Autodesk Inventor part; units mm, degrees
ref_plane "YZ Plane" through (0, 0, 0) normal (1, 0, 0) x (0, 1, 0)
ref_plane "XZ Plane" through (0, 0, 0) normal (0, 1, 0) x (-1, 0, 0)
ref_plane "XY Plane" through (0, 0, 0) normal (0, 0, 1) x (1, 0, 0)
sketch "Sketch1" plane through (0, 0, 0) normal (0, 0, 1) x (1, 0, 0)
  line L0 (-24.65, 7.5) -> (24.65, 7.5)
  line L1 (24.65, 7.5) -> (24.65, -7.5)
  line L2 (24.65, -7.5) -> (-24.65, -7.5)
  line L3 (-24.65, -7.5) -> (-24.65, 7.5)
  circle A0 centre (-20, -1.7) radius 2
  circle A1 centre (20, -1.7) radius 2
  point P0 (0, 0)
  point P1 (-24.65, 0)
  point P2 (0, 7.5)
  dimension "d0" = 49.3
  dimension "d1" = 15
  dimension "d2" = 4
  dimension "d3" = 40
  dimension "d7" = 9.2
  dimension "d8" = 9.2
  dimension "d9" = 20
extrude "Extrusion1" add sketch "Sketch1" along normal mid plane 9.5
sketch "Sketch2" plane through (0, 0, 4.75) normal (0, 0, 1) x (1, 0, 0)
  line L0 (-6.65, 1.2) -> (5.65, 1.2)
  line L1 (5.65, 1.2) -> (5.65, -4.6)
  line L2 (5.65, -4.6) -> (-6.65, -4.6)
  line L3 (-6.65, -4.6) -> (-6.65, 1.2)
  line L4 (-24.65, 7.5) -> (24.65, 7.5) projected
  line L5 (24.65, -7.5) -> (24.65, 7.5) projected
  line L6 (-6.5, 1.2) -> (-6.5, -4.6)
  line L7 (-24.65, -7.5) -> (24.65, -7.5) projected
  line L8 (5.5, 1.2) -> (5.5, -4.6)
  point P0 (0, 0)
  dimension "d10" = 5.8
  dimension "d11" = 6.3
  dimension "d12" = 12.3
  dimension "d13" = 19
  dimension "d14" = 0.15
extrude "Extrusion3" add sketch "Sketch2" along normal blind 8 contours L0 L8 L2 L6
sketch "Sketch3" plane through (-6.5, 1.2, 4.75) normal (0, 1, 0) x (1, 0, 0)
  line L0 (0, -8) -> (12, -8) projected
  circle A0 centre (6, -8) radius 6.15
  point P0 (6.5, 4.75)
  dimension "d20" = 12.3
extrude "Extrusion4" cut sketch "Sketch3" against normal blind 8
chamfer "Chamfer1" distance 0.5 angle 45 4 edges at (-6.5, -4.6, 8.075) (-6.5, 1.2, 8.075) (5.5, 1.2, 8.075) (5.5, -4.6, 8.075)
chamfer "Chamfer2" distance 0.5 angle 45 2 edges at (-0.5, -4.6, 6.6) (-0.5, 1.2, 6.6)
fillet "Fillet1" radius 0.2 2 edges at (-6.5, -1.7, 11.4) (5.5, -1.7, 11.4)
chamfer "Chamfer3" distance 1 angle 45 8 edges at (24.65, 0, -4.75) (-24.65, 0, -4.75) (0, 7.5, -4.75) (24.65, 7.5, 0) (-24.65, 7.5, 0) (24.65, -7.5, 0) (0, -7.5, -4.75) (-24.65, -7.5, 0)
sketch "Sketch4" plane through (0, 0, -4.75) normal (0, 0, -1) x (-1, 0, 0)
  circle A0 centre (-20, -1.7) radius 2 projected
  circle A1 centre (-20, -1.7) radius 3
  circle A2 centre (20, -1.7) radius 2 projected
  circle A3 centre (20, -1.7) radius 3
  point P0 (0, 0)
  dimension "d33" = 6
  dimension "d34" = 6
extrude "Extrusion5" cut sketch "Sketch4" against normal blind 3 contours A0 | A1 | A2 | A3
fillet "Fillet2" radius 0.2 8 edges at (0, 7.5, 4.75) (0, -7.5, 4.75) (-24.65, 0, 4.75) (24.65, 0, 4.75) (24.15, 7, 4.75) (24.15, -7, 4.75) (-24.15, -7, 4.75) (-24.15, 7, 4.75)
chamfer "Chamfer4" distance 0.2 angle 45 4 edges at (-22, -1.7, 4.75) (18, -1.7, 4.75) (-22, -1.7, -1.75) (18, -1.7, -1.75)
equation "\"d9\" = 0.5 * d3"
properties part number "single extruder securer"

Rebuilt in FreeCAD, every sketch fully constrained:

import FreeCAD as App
import Part
import Sketcher
from FreeCAD import Vector


def edges_at(feature, points):
    """Names of the edges that pass closest to the given points."""
    edges = feature.Shape.Edges
    near = lambda p: min(range(len(edges)), key=lambda i: edges[i].distToShape(Part.Vertex(*p))[0])
    return sorted({f"Edge{near(p) + 1}" for p in points})


def add_polygon(sketch, points):
    """Adds a closed chain of lines whose ends are joined by coincident constraints."""
    first, n = sketch.GeometryCount, len(points)
    for a, b in zip(points, points[1:] + points[:1]):
        sketch.addGeometry(Part.LineSegment(App.Vector(*a, 0), App.Vector(*b, 0)), False)
    for i in range(n):
        sketch.addConstraint(Sketcher.Constraint("Coincident", first + i, 2, first + (i + 1) % n, 1))

doc = App.newDocument("Part")
body = doc.addObject("PartDesign::Body", "Body")

# Sketch on XY plane
sketch1 = body.newObject("Sketcher::SketchObject", "Sketch")
sketch1.AttachmentSupport = (doc.getObject("XY_Plane"), [""])
sketch1.MapMode = "FlatFace"
add_polygon(sketch1, [(24.65, 7.5), (-24.65, 7.5), (-24.65, -7.5), (24.65, -7.5)])  # lines 0-3
sketch1.addGeometry(Part.Circle(Vector(-20, -1.7, 0), Vector(0, 0, 1), 2), False)  # 4
sketch1.addGeometry(Part.Circle(Vector(20, -1.7, 0), Vector(0, 0, 1), 2), False)  # 5
sketch1.addConstraint(Sketcher.Constraint("Horizontal", 0))
sketch1.addConstraint(Sketcher.Constraint("Vertical", 1))
sketch1.addConstraint(Sketcher.Constraint("Horizontal", 2))
sketch1.addConstraint(Sketcher.Constraint("Vertical", 3))
sketch1.addConstraint(Sketcher.Constraint("Equal", 4, 5))
sketch1.addConstraint(Sketcher.Constraint("Symmetric", 0, 2, 2, 2, -1, 1))
sketch1.addConstraint(Sketcher.Constraint("Symmetric", 4, 3, 5, 3, -2))
sketch1.addConstraint(Sketcher.Constraint("Diameter", 4, 4.0))
sketch1.addConstraint(Sketcher.Constraint("DistanceY", 1, 2, 1, 1, 15.0))
sketch1.addConstraint(Sketcher.Constraint("DistanceX", 0, 2, 0, 1, 49.3))
sketch1.addConstraint(Sketcher.Constraint("DistanceX", 4, 3, -1, 1, 20.0))
sketch1.addConstraint(Sketcher.Constraint("DistanceY", 4, 3, 0, 2, 9.2))
pad1 = body.newObject("PartDesign::Pad", "Pad")
pad1.Profile = sketch1
pad1.Length = 9.5
pad1.Midplane = True

# Sketch on XY plane
sketch2 = body.newObject("Sketcher::SketchObject", "Sketch001")
sketch2.AttachmentSupport = (doc.getObject("XY_Plane"), [""])
sketch2.MapMode = "FlatFace"
sketch2.AttachmentOffset = App.Placement(Vector(0, 0, 4.75), App.Rotation())
add_polygon(sketch2, [(5.5, 1.2), (-6.5, 1.2), (-6.5, -4.6), (5.5, -4.6)])  # lines 0-3
sketch2.addConstraint(Sketcher.Constraint("Horizontal", 0))
sketch2.addConstraint(Sketcher.Constraint("Vertical", 1))
sketch2.addConstraint(Sketcher.Constraint("Horizontal", 2))
sketch2.addConstraint(Sketcher.Constraint("Vertical", 3))
sketch2.addConstraint(Sketcher.Constraint("DistanceY", 1, 2, 1, 1, 5.8))
sketch2.addConstraint(Sketcher.Constraint("DistanceX", 0, 2, 0, 1, 12.0))
sketch2.addConstraint(Sketcher.Constraint("DistanceX", 0, 2, -1, 1, 6.5))
sketch2.addConstraint(Sketcher.Constraint("DistanceY", -1, 1, 0, 2, 1.2))
pad2 = body.newObject("PartDesign::Pad", "Pad001")
pad2.Profile = sketch2
pad2.Length = 8

# Sketch on XZ plane
sketch3 = body.newObject("Sketcher::SketchObject", "Sketch002")
sketch3.AttachmentSupport = (doc.getObject("XZ_Plane"), [""])
sketch3.MapMode = "FlatFace"
sketch3.AttachmentOffset = App.Placement(Vector(0, 0, -1.2), App.Rotation())
sketch3.addGeometry(Part.Circle(Vector(-0.5, 12.75, 0), Vector(0, 0, 1), 6.15), False)
sketch3.addConstraint(Sketcher.Constraint("Diameter", 0, 12.3))
sketch3.addConstraint(Sketcher.Constraint("DistanceX", 0, 3, -1, 1, 0.5))
sketch3.addConstraint(Sketcher.Constraint("DistanceY", -1, 1, 0, 3, 12.75))
pocket1 = body.newObject("PartDesign::Pocket", "Pocket")
pocket1.Profile = sketch3
pocket1.Length = 8
pocket1.Reversed = True
doc.recompute()

chamfer = body.newObject("PartDesign::Chamfer", "Chamfer")
chamfer.Base = (pocket1, edges_at(pocket1, [
    (-6.5, -4.6, 8.075),
    (-6.5, 1.2, 8.075),
    (5.5, 1.2, 8.075),
    (5.5, -4.6, 8.075),
]))
chamfer.Size = 0.5
doc.recompute()

chamfer2 = body.newObject("PartDesign::Chamfer", "Chamfer001")
chamfer2.Base = (chamfer, edges_at(chamfer, [(-0.5, -4.6, 6.6), (-0.5, 1.2, 6.6)]))
chamfer2.Size = 0.5
doc.recompute()

fillet = body.newObject("PartDesign::Fillet", "Fillet")
fillet.Base = (chamfer2, edges_at(chamfer2, [(-6.5, -1.7, 11.4), (5.5, -1.7, 11.4)]))
fillet.Radius = 0.2
doc.recompute()

chamfer3 = body.newObject("PartDesign::Chamfer", "Chamfer002")
chamfer3.Base = (fillet, edges_at(fillet, [
    (24.65, 0, -4.75),
    (-24.65, 0, -4.75),
    (0, 7.5, -4.75),
    (24.65, 7.5, 0),
    (-24.65, 7.5, 0),
    (24.65, -7.5, 0),
    (0, -7.5, -4.75),
    (-24.65, -7.5, 0),
]))
chamfer3.Size = 1

# Sketch on XY plane
sketch4 = body.newObject("Sketcher::SketchObject", "Sketch003")
sketch4.AttachmentSupport = (doc.getObject("XY_Plane"), [""])
sketch4.MapMode = "FlatFace"
sketch4.AttachmentOffset = App.Placement(Vector(0, 0, -4.75), App.Rotation())
sketch4.addGeometry(Part.Circle(Vector(20, -1.7, 0), Vector(0, 0, 1), 3), False)
sketch4.addGeometry(Part.Circle(Vector(-20, -1.7, 0), Vector(0, 0, 1), 3), False)
sketch4.addConstraint(Sketcher.Constraint("Equal", 0, 1))
sketch4.addConstraint(Sketcher.Constraint("Symmetric", 0, 3, 1, 3, -2))
sketch4.addConstraint(Sketcher.Constraint("Diameter", 0, 6.0))
sketch4.addConstraint(Sketcher.Constraint("DistanceX", -1, 1, 0, 3, 20.0))
sketch4.addConstraint(Sketcher.Constraint("DistanceY", 0, 3, -1, 1, 1.7))
pocket2 = body.newObject("PartDesign::Pocket", "Pocket001")
pocket2.Profile = sketch4
pocket2.Length = 3
pocket2.Reversed = True
doc.recompute()

fillet2 = body.newObject("PartDesign::Fillet", "Fillet001")
fillet2.Base = (pocket2, edges_at(pocket2, [
    (0, 7.5, 4.75),
    (0, -7.5, 4.75),
    (-24.65, 0, 4.75),
    (24.65, 0, 4.75),
    (24.15, 7, 4.75),
    (24.15, -7, 4.75),
    (-24.15, -7, 4.75),
    (-24.15, 7, 4.75),
]))
fillet2.Radius = 0.2
doc.recompute()

chamfer4 = body.newObject("PartDesign::Chamfer", "Chamfer003")
chamfer4.Base = (fillet2, edges_at(fillet2, [
    (-22, -1.7, 4.75),
    (18, -1.7, 4.75),
    (-22, -1.7, -1.75),
    (18, -1.7, -1.75),
]))
chamfer4.Size = 0.2

doc.recompute()
